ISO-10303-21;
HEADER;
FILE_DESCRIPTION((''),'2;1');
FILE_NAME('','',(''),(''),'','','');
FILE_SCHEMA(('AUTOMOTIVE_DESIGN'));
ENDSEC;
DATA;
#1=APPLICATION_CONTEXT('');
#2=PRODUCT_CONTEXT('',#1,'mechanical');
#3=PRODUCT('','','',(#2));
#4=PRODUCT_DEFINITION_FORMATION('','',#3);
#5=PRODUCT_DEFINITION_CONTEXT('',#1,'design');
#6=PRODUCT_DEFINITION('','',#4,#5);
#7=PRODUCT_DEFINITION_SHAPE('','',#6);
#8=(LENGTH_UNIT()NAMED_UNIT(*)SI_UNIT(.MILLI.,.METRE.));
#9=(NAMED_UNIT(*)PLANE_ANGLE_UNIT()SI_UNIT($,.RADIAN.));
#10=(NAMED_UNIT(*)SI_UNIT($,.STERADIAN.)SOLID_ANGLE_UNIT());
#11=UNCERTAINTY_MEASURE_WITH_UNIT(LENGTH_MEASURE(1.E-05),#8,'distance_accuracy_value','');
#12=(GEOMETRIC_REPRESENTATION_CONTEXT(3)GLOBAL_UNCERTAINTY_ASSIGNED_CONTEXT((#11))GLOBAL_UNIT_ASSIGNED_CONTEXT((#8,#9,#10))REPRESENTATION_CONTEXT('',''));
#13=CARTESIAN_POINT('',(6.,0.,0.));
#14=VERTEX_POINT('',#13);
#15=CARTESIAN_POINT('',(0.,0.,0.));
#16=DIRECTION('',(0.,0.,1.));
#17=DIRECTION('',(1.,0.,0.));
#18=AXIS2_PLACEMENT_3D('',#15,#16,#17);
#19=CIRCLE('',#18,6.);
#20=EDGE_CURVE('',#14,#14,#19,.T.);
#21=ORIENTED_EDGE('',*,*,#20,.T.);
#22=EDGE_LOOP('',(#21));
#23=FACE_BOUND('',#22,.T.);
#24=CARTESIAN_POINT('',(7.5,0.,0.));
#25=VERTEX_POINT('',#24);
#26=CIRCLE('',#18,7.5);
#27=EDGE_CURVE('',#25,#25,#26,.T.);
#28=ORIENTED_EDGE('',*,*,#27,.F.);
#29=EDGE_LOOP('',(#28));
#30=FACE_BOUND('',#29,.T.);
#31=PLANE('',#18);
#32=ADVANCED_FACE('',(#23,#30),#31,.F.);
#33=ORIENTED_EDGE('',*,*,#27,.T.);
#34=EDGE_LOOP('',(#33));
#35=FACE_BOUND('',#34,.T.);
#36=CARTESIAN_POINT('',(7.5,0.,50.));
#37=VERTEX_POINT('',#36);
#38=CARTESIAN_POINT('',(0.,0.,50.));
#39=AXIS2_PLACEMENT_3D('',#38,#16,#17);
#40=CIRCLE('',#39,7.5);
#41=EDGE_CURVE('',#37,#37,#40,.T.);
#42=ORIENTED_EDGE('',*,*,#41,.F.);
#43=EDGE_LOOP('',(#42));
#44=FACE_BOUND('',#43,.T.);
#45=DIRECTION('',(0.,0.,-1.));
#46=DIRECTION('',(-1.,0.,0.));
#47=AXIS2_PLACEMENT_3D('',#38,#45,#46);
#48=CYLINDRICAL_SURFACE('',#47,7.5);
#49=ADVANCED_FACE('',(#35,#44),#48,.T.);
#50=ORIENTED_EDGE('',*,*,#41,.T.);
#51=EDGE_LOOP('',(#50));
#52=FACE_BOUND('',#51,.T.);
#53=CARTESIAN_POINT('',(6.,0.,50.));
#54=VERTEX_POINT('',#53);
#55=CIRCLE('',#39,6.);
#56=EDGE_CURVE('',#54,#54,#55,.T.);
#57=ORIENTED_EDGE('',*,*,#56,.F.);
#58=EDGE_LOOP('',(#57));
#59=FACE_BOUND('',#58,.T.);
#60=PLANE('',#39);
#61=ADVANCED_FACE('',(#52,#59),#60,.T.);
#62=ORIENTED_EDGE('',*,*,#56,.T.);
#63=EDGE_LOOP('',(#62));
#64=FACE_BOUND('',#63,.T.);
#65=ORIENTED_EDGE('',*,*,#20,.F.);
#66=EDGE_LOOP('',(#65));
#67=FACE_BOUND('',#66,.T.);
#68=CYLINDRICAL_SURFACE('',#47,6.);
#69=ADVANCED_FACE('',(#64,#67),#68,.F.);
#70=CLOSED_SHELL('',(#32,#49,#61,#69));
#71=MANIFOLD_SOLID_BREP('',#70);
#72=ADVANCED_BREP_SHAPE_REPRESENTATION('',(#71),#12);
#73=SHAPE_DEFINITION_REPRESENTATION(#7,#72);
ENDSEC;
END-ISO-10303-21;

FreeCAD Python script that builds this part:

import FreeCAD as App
import Part
import Sketcher

V = App.Vector
Q = App.Units.Quantity

doc = App.newDocument("Part")
body = doc.addObject("PartDesign::Body", "Body")

sketch1 = doc.addObject("Sketcher::SketchObject", "Sketch")
body.addObject(sketch1)
sketch1.AttachmentSupport = (doc.XY_Plane, [""])
sketch1.MapMode = "FlatFace"
sketch1.addGeometry([
    Part.Circle(V(0, 0, 0), V(0, 0, 1), 8),
    Part.Circle(V(0, 0, 0), V(0, 0, 1), 6),
], False)
sketch1.addConstraint([
    Sketcher.Constraint("Coincident", 0, 3, -1, 1),
    Sketcher.Constraint("Coincident", 1, 3, -1, 1),
    Sketcher.Constraint("Diameter", 0, Q("15 mm")),
    Sketcher.Constraint("Diameter", 1, Q("12 mm")),
])
pad1 = doc.addObject("PartDesign::Pad", "Pad")
body.addObject(pad1)
pad1.Profile = sketch1
pad1.Length = 50

doc.recompute()
